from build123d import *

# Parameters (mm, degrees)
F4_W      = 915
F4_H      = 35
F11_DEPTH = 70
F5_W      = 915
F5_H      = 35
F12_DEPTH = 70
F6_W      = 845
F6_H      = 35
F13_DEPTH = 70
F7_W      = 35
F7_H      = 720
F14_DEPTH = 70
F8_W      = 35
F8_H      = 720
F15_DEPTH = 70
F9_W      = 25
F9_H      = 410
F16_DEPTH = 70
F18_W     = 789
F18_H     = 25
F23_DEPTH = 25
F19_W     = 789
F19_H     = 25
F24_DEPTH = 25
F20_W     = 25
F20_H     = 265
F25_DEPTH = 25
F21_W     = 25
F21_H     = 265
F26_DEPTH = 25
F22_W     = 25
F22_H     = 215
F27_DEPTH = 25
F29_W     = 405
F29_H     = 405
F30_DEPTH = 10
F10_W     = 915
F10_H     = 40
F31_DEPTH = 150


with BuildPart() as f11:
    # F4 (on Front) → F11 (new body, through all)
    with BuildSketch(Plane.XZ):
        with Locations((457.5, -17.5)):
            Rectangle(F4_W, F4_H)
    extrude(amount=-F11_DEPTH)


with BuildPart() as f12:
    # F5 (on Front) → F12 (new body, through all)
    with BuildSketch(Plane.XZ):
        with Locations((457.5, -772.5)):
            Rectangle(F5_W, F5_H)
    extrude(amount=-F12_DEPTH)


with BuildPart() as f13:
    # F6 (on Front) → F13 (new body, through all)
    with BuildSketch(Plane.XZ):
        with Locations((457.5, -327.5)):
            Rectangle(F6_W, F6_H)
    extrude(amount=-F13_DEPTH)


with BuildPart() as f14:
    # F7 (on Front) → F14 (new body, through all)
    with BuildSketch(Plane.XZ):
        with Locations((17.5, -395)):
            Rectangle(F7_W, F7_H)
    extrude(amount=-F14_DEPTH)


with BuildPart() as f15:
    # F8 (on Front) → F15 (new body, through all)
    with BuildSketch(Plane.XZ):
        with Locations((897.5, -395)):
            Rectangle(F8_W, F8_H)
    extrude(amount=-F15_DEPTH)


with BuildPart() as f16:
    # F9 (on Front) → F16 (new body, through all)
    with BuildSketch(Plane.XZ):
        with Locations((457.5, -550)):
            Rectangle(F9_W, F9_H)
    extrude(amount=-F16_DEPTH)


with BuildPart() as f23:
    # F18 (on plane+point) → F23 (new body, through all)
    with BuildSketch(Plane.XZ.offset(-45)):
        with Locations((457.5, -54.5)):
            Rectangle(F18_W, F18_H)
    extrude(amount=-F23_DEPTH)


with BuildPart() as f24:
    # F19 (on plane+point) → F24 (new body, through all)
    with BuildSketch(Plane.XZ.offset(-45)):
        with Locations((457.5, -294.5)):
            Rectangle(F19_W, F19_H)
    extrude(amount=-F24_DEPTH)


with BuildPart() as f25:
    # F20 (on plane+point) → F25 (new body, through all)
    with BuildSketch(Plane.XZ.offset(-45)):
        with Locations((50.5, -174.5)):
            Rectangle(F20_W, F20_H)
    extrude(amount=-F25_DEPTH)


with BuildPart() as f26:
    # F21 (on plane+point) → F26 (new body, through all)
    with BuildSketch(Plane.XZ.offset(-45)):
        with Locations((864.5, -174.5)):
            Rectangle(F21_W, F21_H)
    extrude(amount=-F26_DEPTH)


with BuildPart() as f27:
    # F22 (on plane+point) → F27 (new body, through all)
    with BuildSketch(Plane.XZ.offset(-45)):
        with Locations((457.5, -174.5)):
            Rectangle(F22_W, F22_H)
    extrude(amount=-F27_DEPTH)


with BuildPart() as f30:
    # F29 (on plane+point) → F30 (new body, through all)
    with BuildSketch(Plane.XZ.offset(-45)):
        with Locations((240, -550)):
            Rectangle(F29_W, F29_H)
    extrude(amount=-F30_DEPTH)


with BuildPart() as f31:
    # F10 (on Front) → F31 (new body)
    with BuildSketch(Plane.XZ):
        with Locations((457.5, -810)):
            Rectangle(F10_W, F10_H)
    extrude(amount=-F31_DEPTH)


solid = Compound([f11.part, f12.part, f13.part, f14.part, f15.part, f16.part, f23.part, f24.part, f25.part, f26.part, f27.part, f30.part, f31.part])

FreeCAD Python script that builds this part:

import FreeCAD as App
import Part
import Sketcher
from FreeCAD import Vector

doc = App.newDocument("Part")
body = doc.addObject("PartDesign::Body", "Body")

# Sketch on XZ plane
sketch1 = body.newObject("Sketcher::SketchObject", "Sketch")
sketch1.AttachmentSupport = (doc.getObject("XZ_Plane"), [""])
sketch1.MapMode = "FlatFace"
sketch1.addGeometry(Part.LineSegment(Vector(0, 0, 0), Vector(0, -35, 0)), False)
sketch1.addGeometry(Part.LineSegment(Vector(0, -35, 0), Vector(915, -35, 0)), False)
sketch1.addGeometry(Part.LineSegment(Vector(915, -35, 0), Vector(915, 0, 0)), False)
sketch1.addGeometry(Part.LineSegment(Vector(915, 0, 0), Vector(0, 0, 0)), False)
sketch1.addConstraint(Sketcher.Constraint("Coincident", 0, 2, 1, 1))
sketch1.addConstraint(Sketcher.Constraint("Coincident", 1, 2, 2, 1))
sketch1.addConstraint(Sketcher.Constraint("Coincident", 2, 2, 3, 1))
sketch1.addConstraint(Sketcher.Constraint("Coincident", 3, 2, 0, 1))
sketch1.addConstraint(Sketcher.Constraint("Vertical", 0))
sketch1.addConstraint(Sketcher.Constraint("Horizontal", 1))
sketch1.addConstraint(Sketcher.Constraint("Vertical", 2))
sketch1.addConstraint(Sketcher.Constraint("Horizontal", 3))
sketch1.addConstraint(Sketcher.Constraint("Coincident", 3, 2, -1, 1))
sketch1.addConstraint(Sketcher.Constraint("DistanceX", 1, 1, 1, 2, 915.0))
sketch1.addConstraint(Sketcher.Constraint("DistanceY", 0, 2, 0, 1, 35.0))
pad1 = body.newObject("PartDesign::Pad", "Pad")
pad1.Profile = sketch1
pad1.Length = 70
pad1.Reversed = True
body2 = doc.addObject("PartDesign::Body", "Body001")

# Sketch on XZ plane
sketch2 = body2.newObject("Sketcher::SketchObject", "Sketch001")
sketch2.AttachmentSupport = (doc.getObject("XZ_Plane001"), [""])
sketch2.MapMode = "FlatFace"
sketch2.addGeometry(Part.LineSegment(Vector(0, -755, 0), Vector(0, -790, 0)), False)
sketch2.addGeometry(Part.LineSegment(Vector(0, -790, 0), Vector(915, -790, 0)), False)
sketch2.addGeometry(Part.LineSegment(Vector(915, -790, 0), Vector(915, -755, 0)), False)
sketch2.addGeometry(Part.LineSegment(Vector(915, -755, 0), Vector(0, -755, 0)), False)
sketch2.addConstraint(Sketcher.Constraint("Coincident", 0, 2, 1, 1))
sketch2.addConstraint(Sketcher.Constraint("Coincident", 1, 2, 2, 1))
sketch2.addConstraint(Sketcher.Constraint("Coincident", 2, 2, 3, 1))
sketch2.addConstraint(Sketcher.Constraint("Coincident", 3, 2, 0, 1))
sketch2.addConstraint(Sketcher.Constraint("Vertical", 0))
sketch2.addConstraint(Sketcher.Constraint("Horizontal", 1))
sketch2.addConstraint(Sketcher.Constraint("Vertical", 2))
sketch2.addConstraint(Sketcher.Constraint("Horizontal", 3))
sketch2.addConstraint(Sketcher.Constraint("PointOnObject", 0, 2, -2))
sketch2.addConstraint(Sketcher.Constraint("DistanceX", 1, 1, 1, 2, 915.0))
sketch2.addConstraint(Sketcher.Constraint("DistanceY", 0, 2, 0, 1, 35.0))
sketch2.addConstraint(Sketcher.Constraint("DistanceY", 0, 2, -1, 1, 790.0))
pad2 = body2.newObject("PartDesign::Pad", "Pad001")
pad2.Profile = sketch2
pad2.Length = 70
pad2.Reversed = True
body3 = doc.addObject("PartDesign::Body", "Body002")

# Sketch on XZ plane
sketch3 = body3.newObject("Sketcher::SketchObject", "Sketch002")
sketch3.AttachmentSupport = (doc.getObject("XZ_Plane002"), [""])
sketch3.MapMode = "FlatFace"
sketch3.addGeometry(Part.LineSegment(Vector(35, -310, 0), Vector(35, -345, 0)), False)
sketch3.addGeometry(Part.LineSegment(Vector(35, -345, 0), Vector(880, -345, 0)), False)
sketch3.addGeometry(Part.LineSegment(Vector(880, -345, 0), Vector(880, -310, 0)), False)
sketch3.addGeometry(Part.LineSegment(Vector(880, -310, 0), Vector(35, -310, 0)), False)
sketch3.addConstraint(Sketcher.Constraint("Coincident", 0, 2, 1, 1))
sketch3.addConstraint(Sketcher.Constraint("Coincident", 1, 2, 2, 1))
sketch3.addConstraint(Sketcher.Constraint("Coincident", 2, 2, 3, 1))
sketch3.addConstraint(Sketcher.Constraint("Coincident", 3, 2, 0, 1))
sketch3.addConstraint(Sketcher.Constraint("Vertical", 0))
sketch3.addConstraint(Sketcher.Constraint("Horizontal", 1))
sketch3.addConstraint(Sketcher.Constraint("Vertical", 2))
sketch3.addConstraint(Sketcher.Constraint("Horizontal", 3))
sketch3.addConstraint(Sketcher.Constraint("DistanceX", 1, 1, 1, 2, 845.0))
sketch3.addConstraint(Sketcher.Constraint("DistanceY", 0, 2, 0, 1, 35.0))
sketch3.addConstraint(Sketcher.Constraint("DistanceX", -1, 1, 0, 2, 35.0))
sketch3.addConstraint(Sketcher.Constraint("DistanceY", 0, 2, -1, 1, 345.0))
pad3 = body3.newObject("PartDesign::Pad", "Pad002")
pad3.Profile = sketch3
pad3.Length = 70
pad3.Reversed = True
body4 = doc.addObject("PartDesign::Body", "Body003")

# Sketch on XZ plane
sketch4 = body4.newObject("Sketcher::SketchObject", "Sketch003")
sketch4.AttachmentSupport = (doc.getObject("XZ_Plane003"), [""])
sketch4.MapMode = "FlatFace"
sketch4.addGeometry(Part.LineSegment(Vector(0, -35, 0), Vector(0, -755, 0)), False)
sketch4.addGeometry(Part.LineSegment(Vector(0, -755, 0), Vector(35, -755, 0)), False)
sketch4.addGeometry(Part.LineSegment(Vector(35, -755, 0), Vector(35, -35, 0)), False)
sketch4.addGeometry(Part.LineSegment(Vector(35, -35, 0), Vector(0, -35, 0)), False)
sketch4.addConstraint(Sketcher.Constraint("Coincident", 0, 2, 1, 1))
sketch4.addConstraint(Sketcher.Constraint("Coincident", 1, 2, 2, 1))
sketch4.addConstraint(Sketcher.Constraint("Coincident", 2, 2, 3, 1))
sketch4.addConstraint(Sketcher.Constraint("Coincident", 3, 2, 0, 1))
sketch4.addConstraint(Sketcher.Constraint("Vertical", 0))
sketch4.addConstraint(Sketcher.Constraint("Horizontal", 1))
sketch4.addConstraint(Sketcher.Constraint("Vertical", 2))
sketch4.addConstraint(Sketcher.Constraint("Horizontal", 3))
sketch4.addConstraint(Sketcher.Constraint("PointOnObject", 0, 2, -2))
sketch4.addConstraint(Sketcher.Constraint("DistanceX", 1, 1, 1, 2, 35.0))
sketch4.addConstraint(Sketcher.Constraint("DistanceY", 0, 2, 0, 1, 720.0))
sketch4.addConstraint(Sketcher.Constraint("DistanceY", 0, 2, -1, 1, 755.0))
pad4 = body4.newObject("PartDesign::Pad", "Pad003")
pad4.Profile = sketch4
pad4.Length = 70
pad4.Reversed = True
body5 = doc.addObject("PartDesign::Body", "Body004")

# Sketch on XZ plane
sketch5 = body5.newObject("Sketcher::SketchObject", "Sketch004")
sketch5.AttachmentSupport = (doc.getObject("XZ_Plane004"), [""])
sketch5.MapMode = "FlatFace"
sketch5.addGeometry(Part.LineSegment(Vector(880, -35, 0), Vector(880, -755, 0)), False)
sketch5.addGeometry(Part.LineSegment(Vector(880, -755, 0), Vector(915, -755, 0)), False)
sketch5.addGeometry(Part.LineSegment(Vector(915, -755, 0), Vector(915, -35, 0)), False)
sketch5.addGeometry(Part.LineSegment(Vector(915, -35, 0), Vector(880, -35, 0)), False)
sketch5.addConstraint(Sketcher.Constraint("Coincident", 0, 2, 1, 1))
sketch5.addConstraint(Sketcher.Constraint("Coincident", 1, 2, 2, 1))
sketch5.addConstraint(Sketcher.Constraint("Coincident", 2, 2, 3, 1))
sketch5.addConstraint(Sketcher.Constraint("Coincident", 3, 2, 0, 1))
sketch5.addConstraint(Sketcher.Constraint("Vertical", 0))
sketch5.addConstraint(Sketcher.Constraint("Horizontal", 1))
sketch5.addConstraint(Sketcher.Constraint("Vertical", 2))
sketch5.addConstraint(Sketcher.Constraint("Horizontal", 3))
sketch5.addConstraint(Sketcher.Constraint("DistanceX", 1, 1, 1, 2, 35.0))
sketch5.addConstraint(Sketcher.Constraint("DistanceY", 0, 2, 0, 1, 720.0))
sketch5.addConstraint(Sketcher.Constraint("DistanceX", -1, 1, 0, 2, 880.0))
sketch5.addConstraint(Sketcher.Constraint("DistanceY", 0, 2, -1, 1, 755.0))
pad5 = body5.newObject("PartDesign::Pad", "Pad004")
pad5.Profile = sketch5
pad5.Length = 70
pad5.Reversed = True
body6 = doc.addObject("PartDesign::Body", "Body005")

# Sketch on XZ plane
sketch6 = body6.newObject("Sketcher::SketchObject", "Sketch005")
sketch6.AttachmentSupport = (doc.getObject("XZ_Plane005"), [""])
sketch6.MapMode = "FlatFace"
sketch6.addGeometry(Part.LineSegment(Vector(445, -345, 0), Vector(445, -755, 0)), False)
sketch6.addGeometry(Part.LineSegment(Vector(445, -755, 0), Vector(470, -755, 0)), False)
sketch6.addGeometry(Part.LineSegment(Vector(470, -755, 0), Vector(470, -345, 0)), False)
sketch6.addGeometry(Part.LineSegment(Vector(470, -345, 0), Vector(445, -345, 0)), False)
sketch6.addConstraint(Sketcher.Constraint("Coincident", 0, 2, 1, 1))
sketch6.addConstraint(Sketcher.Constraint("Coincident", 1, 2, 2, 1))
sketch6.addConstraint(Sketcher.Constraint("Coincident", 2, 2, 3, 1))
sketch6.addConstraint(Sketcher.Constraint("Coincident", 3, 2, 0, 1))
sketch6.addConstraint(Sketcher.Constraint("Vertical", 0))
sketch6.addConstraint(Sketcher.Constraint("Horizontal", 1))
sketch6.addConstraint(Sketcher.Constraint("Vertical", 2))
sketch6.addConstraint(Sketcher.Constraint("Horizontal", 3))
sketch6.addConstraint(Sketcher.Constraint("DistanceX", 1, 1, 1, 2, 25.0))
sketch6.addConstraint(Sketcher.Constraint("DistanceY", 0, 2, 0, 1, 410.0))
sketch6.addConstraint(Sketcher.Constraint("DistanceX", -1, 1, 0, 2, 445.0))
sketch6.addConstraint(Sketcher.Constraint("DistanceY", 0, 2, -1, 1, 755.0))
pad6 = body6.newObject("PartDesign::Pad", "Pad005")
pad6.Profile = sketch6
pad6.Length = 70
pad6.Reversed = True
body7 = doc.addObject("PartDesign::Body", "Body006")

# Sketch on XZ plane
sketch7 = body7.newObject("Sketcher::SketchObject", "Sketch006")
sketch7.AttachmentSupport = (doc.getObject("XZ_Plane006"), [""])
sketch7.MapMode = "FlatFace"
sketch7.AttachmentOffset = App.Placement(Vector(0, 0, -45), App.Rotation())
sketch7.addGeometry(Part.LineSegment(Vector(63, -42, 0), Vector(63, -67, 0)), False)
sketch7.addGeometry(Part.LineSegment(Vector(63, -67, 0), Vector(852, -67, 0)), False)
sketch7.addGeometry(Part.LineSegment(Vector(852, -67, 0), Vector(852, -42, 0)), False)
sketch7.addGeometry(Part.LineSegment(Vector(852, -42, 0), Vector(63, -42, 0)), False)
sketch7.addConstraint(Sketcher.Constraint("Coincident", 0, 2, 1, 1))
sketch7.addConstraint(Sketcher.Constraint("Coincident", 1, 2, 2, 1))
sketch7.addConstraint(Sketcher.Constraint("Coincident", 2, 2, 3, 1))
sketch7.addConstraint(Sketcher.Constraint("Coincident", 3, 2, 0, 1))
sketch7.addConstraint(Sketcher.Constraint("Vertical", 0))
sketch7.addConstraint(Sketcher.Constraint("Horizontal", 1))
sketch7.addConstraint(Sketcher.Constraint("Vertical", 2))
sketch7.addConstraint(Sketcher.Constraint("Horizontal", 3))
sketch7.addConstraint(Sketcher.Constraint("DistanceX", 1, 1, 1, 2, 789.0))
sketch7.addConstraint(Sketcher.Constraint("DistanceY", 0, 2, 0, 1, 25.0))
sketch7.addConstraint(Sketcher.Constraint("DistanceX", -1, 1, 0, 2, 63.0))
sketch7.addConstraint(Sketcher.Constraint("DistanceY", 0, 2, -1, 1, 67.0))
pad7 = body7.newObject("PartDesign::Pad", "Pad006")
pad7.Profile = sketch7
pad7.Length = 25
pad7.Reversed = True
body8 = doc.addObject("PartDesign::Body", "Body007")

# Sketch on XZ plane
sketch8 = body8.newObject("Sketcher::SketchObject", "Sketch007")
sketch8.AttachmentSupport = (doc.getObject("XZ_Plane007"), [""])
sketch8.MapMode = "FlatFace"
sketch8.AttachmentOffset = App.Placement(Vector(0, 0, -45), App.Rotation())
sketch8.addGeometry(Part.LineSegment(Vector(63, -282, 0), Vector(63, -307, 0)), False)
sketch8.addGeometry(Part.LineSegment(Vector(63, -307, 0), Vector(852, -307, 0)), False)
sketch8.addGeometry(Part.LineSegment(Vector(852, -307, 0), Vector(852, -282, 0)), False)
sketch8.addGeometry(Part.LineSegment(Vector(852, -282, 0), Vector(63, -282, 0)), False)
sketch8.addConstraint(Sketcher.Constraint("Coincident", 0, 2, 1, 1))
sketch8.addConstraint(Sketcher.Constraint("Coincident", 1, 2, 2, 1))
sketch8.addConstraint(Sketcher.Constraint("Coincident", 2, 2, 3, 1))
sketch8.addConstraint(Sketcher.Constraint("Coincident", 3, 2, 0, 1))
sketch8.addConstraint(Sketcher.Constraint("Vertical", 0))
sketch8.addConstraint(Sketcher.Constraint("Horizontal", 1))
sketch8.addConstraint(Sketcher.Constraint("Vertical", 2))
sketch8.addConstraint(Sketcher.Constraint("Horizontal", 3))
sketch8.addConstraint(Sketcher.Constraint("DistanceX", 1, 1, 1, 2, 789.0))
sketch8.addConstraint(Sketcher.Constraint("DistanceY", 0, 2, 0, 1, 25.0))
sketch8.addConstraint(Sketcher.Constraint("DistanceX", -1, 1, 0, 2, 63.0))
sketch8.addConstraint(Sketcher.Constraint("DistanceY", 0, 2, -1, 1, 307.0))
pad8 = body8.newObject("PartDesign::Pad", "Pad007")
pad8.Profile = sketch8
pad8.Length = 25
pad8.Reversed = True
body9 = doc.addObject("PartDesign::Body", "Body008")

# Sketch on XZ plane
sketch9 = body9.newObject("Sketcher::SketchObject", "Sketch008")
sketch9.AttachmentSupport = (doc.getObject("XZ_Plane008"), [""])
sketch9.MapMode = "FlatFace"
sketch9.AttachmentOffset = App.Placement(Vector(0, 0, -45), App.Rotation())
sketch9.addGeometry(Part.LineSegment(Vector(38, -42, 0), Vector(38, -307, 0)), False)
sketch9.addGeometry(Part.LineSegment(Vector(38, -307, 0), Vector(63, -307, 0)), False)
sketch9.addGeometry(Part.LineSegment(Vector(63, -307, 0), Vector(63, -42, 0)), False)
sketch9.addGeometry(Part.LineSegment(Vector(63, -42, 0), Vector(38, -42, 0)), False)
sketch9.addConstraint(Sketcher.Constraint("Coincident", 0, 2, 1, 1))
sketch9.addConstraint(Sketcher.Constraint("Coincident", 1, 2, 2, 1))
sketch9.addConstraint(Sketcher.Constraint("Coincident", 2, 2, 3, 1))
sketch9.addConstraint(Sketcher.Constraint("Coincident", 3, 2, 0, 1))
sketch9.addConstraint(Sketcher.Constraint("Vertical", 0))
sketch9.addConstraint(Sketcher.Constraint("Horizontal", 1))
sketch9.addConstraint(Sketcher.Constraint("Vertical", 2))
sketch9.addConstraint(Sketcher.Constraint("Horizontal", 3))
sketch9.addConstraint(Sketcher.Constraint("DistanceX", 1, 1, 1, 2, 25.0))
sketch9.addConstraint(Sketcher.Constraint("DistanceY", 0, 2, 0, 1, 265.0))
sketch9.addConstraint(Sketcher.Constraint("DistanceX", -1, 1, 0, 2, 38.0))
sketch9.addConstraint(Sketcher.Constraint("DistanceY", 0, 2, -1, 1, 307.0))
pad9 = body9.newObject("PartDesign::Pad", "Pad008")
pad9.Profile = sketch9
pad9.Length = 25
pad9.Reversed = True
body10 = doc.addObject("PartDesign::Body", "Body009")

# Sketch on XZ plane
sketch10 = body10.newObject("Sketcher::SketchObject", "Sketch009")
sketch10.AttachmentSupport = (doc.getObject("XZ_Plane009"), [""])
sketch10.MapMode = "FlatFace"
sketch10.AttachmentOffset = App.Placement(Vector(0, 0, -45), App.Rotation())
sketch10.addGeometry(Part.LineSegment(Vector(852, -42, 0), Vector(852, -307, 0)), False)
sketch10.addGeometry(Part.LineSegment(Vector(852, -307, 0), Vector(877, -307, 0)), False)
sketch10.addGeometry(Part.LineSegment(Vector(877, -307, 0), Vector(877, -42, 0)), False)
sketch10.addGeometry(Part.LineSegment(Vector(877, -42, 0), Vector(852, -42, 0)), False)
sketch10.addConstraint(Sketcher.Constraint("Coincident", 0, 2, 1, 1))
sketch10.addConstraint(Sketcher.Constraint("Coincident", 1, 2, 2, 1))
sketch10.addConstraint(Sketcher.Constraint("Coincident", 2, 2, 3, 1))
sketch10.addConstraint(Sketcher.Constraint("Coincident", 3, 2, 0, 1))
sketch10.addConstraint(Sketcher.Constraint("Vertical", 0))
sketch10.addConstraint(Sketcher.Constraint("Horizontal", 1))
sketch10.addConstraint(Sketcher.Constraint("Vertical", 2))
sketch10.addConstraint(Sketcher.Constraint("Horizontal", 3))
sketch10.addConstraint(Sketcher.Constraint("DistanceX", 1, 1, 1, 2, 25.0))
sketch10.addConstraint(Sketcher.Constraint("DistanceY", 0, 2, 0, 1, 265.0))
sketch10.addConstraint(Sketcher.Constraint("DistanceX", -1, 1, 0, 2, 852.0))
sketch10.addConstraint(Sketcher.Constraint("DistanceY", 0, 2, -1, 1, 307.0))
pad10 = body10.newObject("PartDesign::Pad", "Pad009")
pad10.Profile = sketch10
pad10.Length = 25
pad10.Reversed = True
body11 = doc.addObject("PartDesign::Body", "Body010")

# Sketch on XZ plane
sketch11 = body11.newObject("Sketcher::SketchObject", "Sketch010")
sketch11.AttachmentSupport = (doc.getObject("XZ_Plane010"), [""])
sketch11.MapMode = "FlatFace"
sketch11.AttachmentOffset = App.Placement(Vector(0, 0, -45), App.Rotation())
sketch11.addGeometry(Part.LineSegment(Vector(445, -67, 0), Vector(445, -282, 0)), False)
sketch11.addGeometry(Part.LineSegment(Vector(445, -282, 0), Vector(470, -282, 0)), False)
sketch11.addGeometry(Part.LineSegment(Vector(470, -282, 0), Vector(470, -67, 0)), False)
sketch11.addGeometry(Part.LineSegment(Vector(470, -67, 0), Vector(445, -67, 0)), False)
sketch11.addConstraint(Sketcher.Constraint("Coincident", 0, 2, 1, 1))
sketch11.addConstraint(Sketcher.Constraint("Coincident", 1, 2, 2, 1))
sketch11.addConstraint(Sketcher.Constraint("Coincident", 2, 2, 3, 1))
sketch11.addConstraint(Sketcher.Constraint("Coincident", 3, 2, 0, 1))
sketch11.addConstraint(Sketcher.Constraint("Vertical", 0))
sketch11.addConstraint(Sketcher.Constraint("Horizontal", 1))
sketch11.addConstraint(Sketcher.Constraint("Vertical", 2))
sketch11.addConstraint(Sketcher.Constraint("Horizontal", 3))
sketch11.addConstraint(Sketcher.Constraint("DistanceX", 1, 1, 1, 2, 25.0))
sketch11.addConstraint(Sketcher.Constraint("DistanceY", 0, 2, 0, 1, 215.0))
sketch11.addConstraint(Sketcher.Constraint("DistanceX", -1, 1, 0, 2, 445.0))
sketch11.addConstraint(Sketcher.Constraint("DistanceY", 0, 2, -1, 1, 282.0))
pad11 = body11.newObject("PartDesign::Pad", "Pad010")
pad11.Profile = sketch11
pad11.Length = 25
pad11.Reversed = True
body12 = doc.addObject("PartDesign::Body", "Body011")

# Sketch on XZ plane
sketch12 = body12.newObject("Sketcher::SketchObject", "Sketch011")
sketch12.AttachmentSupport = (doc.getObject("XZ_Plane011"), [""])
sketch12.MapMode = "FlatFace"
sketch12.AttachmentOffset = App.Placement(Vector(0, 0, -45), App.Rotation())
sketch12.addGeometry(Part.LineSegment(Vector(38, -348, 0), Vector(38, -752, 0)), False)
sketch12.addGeometry(Part.LineSegment(Vector(38, -752, 0), Vector(442, -752, 0)), False)
sketch12.addGeometry(Part.LineSegment(Vector(442, -752, 0), Vector(442, -348, 0)), False)
sketch12.addGeometry(Part.LineSegment(Vector(442, -348, 0), Vector(38, -348, 0)), False)
sketch12.addConstraint(Sketcher.Constraint("Coincident", 0, 2, 1, 1))
sketch12.addConstraint(Sketcher.Constraint("Coincident", 1, 2, 2, 1))
sketch12.addConstraint(Sketcher.Constraint("Coincident", 2, 2, 3, 1))
sketch12.addConstraint(Sketcher.Constraint("Coincident", 3, 2, 0, 1))
sketch12.addConstraint(Sketcher.Constraint("Vertical", 0))
sketch12.addConstraint(Sketcher.Constraint("Horizontal", 1))
sketch12.addConstraint(Sketcher.Constraint("Vertical", 2))
sketch12.addConstraint(Sketcher.Constraint("Horizontal", 3))
sketch12.addConstraint(Sketcher.Constraint("Equal", 3, 0))
sketch12.addConstraint(Sketcher.Constraint("DistanceX", 1, 1, 1, 2, 405.0))
sketch12.addConstraint(Sketcher.Constraint("DistanceX", -1, 1, 0, 2, 37.5))
sketch12.addConstraint(Sketcher.Constraint("DistanceY", 0, 2, -1, 1, 752.5))
pad12 = body12.newObject("PartDesign::Pad", "Pad011")
pad12.Profile = sketch12
pad12.Length = 10
pad12.Reversed = True
body13 = doc.addObject("PartDesign::Body", "Body012")

# Sketch on XZ plane
sketch13 = body13.newObject("Sketcher::SketchObject", "Sketch012")
sketch13.AttachmentSupport = (doc.getObject("XZ_Plane012"), [""])
sketch13.MapMode = "FlatFace"
sketch13.addGeometry(Part.LineSegment(Vector(0, -790, 0), Vector(0, -830, 0)), False)
sketch13.addGeometry(Part.LineSegment(Vector(0, -830, 0), Vector(915, -830, 0)), False)
sketch13.addGeometry(Part.LineSegment(Vector(915, -830, 0), Vector(915, -790, 0)), False)
sketch13.addGeometry(Part.LineSegment(Vector(915, -790, 0), Vector(0, -790, 0)), False)
sketch13.addConstraint(Sketcher.Constraint("Coincident", 0, 2, 1, 1))
sketch13.addConstraint(Sketcher.Constraint("Coincident", 1, 2, 2, 1))
sketch13.addConstraint(Sketcher.Constraint("Coincident", 2, 2, 3, 1))
sketch13.addConstraint(Sketcher.Constraint("Coincident", 3, 2, 0, 1))
sketch13.addConstraint(Sketcher.Constraint("Vertical", 0))
sketch13.addConstraint(Sketcher.Constraint("Horizontal", 1))
sketch13.addConstraint(Sketcher.Constraint("Vertical", 2))
sketch13.addConstraint(Sketcher.Constraint("Horizontal", 3))
sketch13.addConstraint(Sketcher.Constraint("PointOnObject", 0, 2, -2))
sketch13.addConstraint(Sketcher.Constraint("DistanceX", 1, 1, 1, 2, 915.0))
sketch13.addConstraint(Sketcher.Constraint("DistanceY", 0, 2, 0, 1, 40.0))
sketch13.addConstraint(Sketcher.Constraint("DistanceY", 0, 2, -1, 1, 830.0))
pad13 = body13.newObject("PartDesign::Pad", "Pad012")
pad13.Profile = sketch13
pad13.Length = 150
pad13.Reversed = True

doc.recompute()
